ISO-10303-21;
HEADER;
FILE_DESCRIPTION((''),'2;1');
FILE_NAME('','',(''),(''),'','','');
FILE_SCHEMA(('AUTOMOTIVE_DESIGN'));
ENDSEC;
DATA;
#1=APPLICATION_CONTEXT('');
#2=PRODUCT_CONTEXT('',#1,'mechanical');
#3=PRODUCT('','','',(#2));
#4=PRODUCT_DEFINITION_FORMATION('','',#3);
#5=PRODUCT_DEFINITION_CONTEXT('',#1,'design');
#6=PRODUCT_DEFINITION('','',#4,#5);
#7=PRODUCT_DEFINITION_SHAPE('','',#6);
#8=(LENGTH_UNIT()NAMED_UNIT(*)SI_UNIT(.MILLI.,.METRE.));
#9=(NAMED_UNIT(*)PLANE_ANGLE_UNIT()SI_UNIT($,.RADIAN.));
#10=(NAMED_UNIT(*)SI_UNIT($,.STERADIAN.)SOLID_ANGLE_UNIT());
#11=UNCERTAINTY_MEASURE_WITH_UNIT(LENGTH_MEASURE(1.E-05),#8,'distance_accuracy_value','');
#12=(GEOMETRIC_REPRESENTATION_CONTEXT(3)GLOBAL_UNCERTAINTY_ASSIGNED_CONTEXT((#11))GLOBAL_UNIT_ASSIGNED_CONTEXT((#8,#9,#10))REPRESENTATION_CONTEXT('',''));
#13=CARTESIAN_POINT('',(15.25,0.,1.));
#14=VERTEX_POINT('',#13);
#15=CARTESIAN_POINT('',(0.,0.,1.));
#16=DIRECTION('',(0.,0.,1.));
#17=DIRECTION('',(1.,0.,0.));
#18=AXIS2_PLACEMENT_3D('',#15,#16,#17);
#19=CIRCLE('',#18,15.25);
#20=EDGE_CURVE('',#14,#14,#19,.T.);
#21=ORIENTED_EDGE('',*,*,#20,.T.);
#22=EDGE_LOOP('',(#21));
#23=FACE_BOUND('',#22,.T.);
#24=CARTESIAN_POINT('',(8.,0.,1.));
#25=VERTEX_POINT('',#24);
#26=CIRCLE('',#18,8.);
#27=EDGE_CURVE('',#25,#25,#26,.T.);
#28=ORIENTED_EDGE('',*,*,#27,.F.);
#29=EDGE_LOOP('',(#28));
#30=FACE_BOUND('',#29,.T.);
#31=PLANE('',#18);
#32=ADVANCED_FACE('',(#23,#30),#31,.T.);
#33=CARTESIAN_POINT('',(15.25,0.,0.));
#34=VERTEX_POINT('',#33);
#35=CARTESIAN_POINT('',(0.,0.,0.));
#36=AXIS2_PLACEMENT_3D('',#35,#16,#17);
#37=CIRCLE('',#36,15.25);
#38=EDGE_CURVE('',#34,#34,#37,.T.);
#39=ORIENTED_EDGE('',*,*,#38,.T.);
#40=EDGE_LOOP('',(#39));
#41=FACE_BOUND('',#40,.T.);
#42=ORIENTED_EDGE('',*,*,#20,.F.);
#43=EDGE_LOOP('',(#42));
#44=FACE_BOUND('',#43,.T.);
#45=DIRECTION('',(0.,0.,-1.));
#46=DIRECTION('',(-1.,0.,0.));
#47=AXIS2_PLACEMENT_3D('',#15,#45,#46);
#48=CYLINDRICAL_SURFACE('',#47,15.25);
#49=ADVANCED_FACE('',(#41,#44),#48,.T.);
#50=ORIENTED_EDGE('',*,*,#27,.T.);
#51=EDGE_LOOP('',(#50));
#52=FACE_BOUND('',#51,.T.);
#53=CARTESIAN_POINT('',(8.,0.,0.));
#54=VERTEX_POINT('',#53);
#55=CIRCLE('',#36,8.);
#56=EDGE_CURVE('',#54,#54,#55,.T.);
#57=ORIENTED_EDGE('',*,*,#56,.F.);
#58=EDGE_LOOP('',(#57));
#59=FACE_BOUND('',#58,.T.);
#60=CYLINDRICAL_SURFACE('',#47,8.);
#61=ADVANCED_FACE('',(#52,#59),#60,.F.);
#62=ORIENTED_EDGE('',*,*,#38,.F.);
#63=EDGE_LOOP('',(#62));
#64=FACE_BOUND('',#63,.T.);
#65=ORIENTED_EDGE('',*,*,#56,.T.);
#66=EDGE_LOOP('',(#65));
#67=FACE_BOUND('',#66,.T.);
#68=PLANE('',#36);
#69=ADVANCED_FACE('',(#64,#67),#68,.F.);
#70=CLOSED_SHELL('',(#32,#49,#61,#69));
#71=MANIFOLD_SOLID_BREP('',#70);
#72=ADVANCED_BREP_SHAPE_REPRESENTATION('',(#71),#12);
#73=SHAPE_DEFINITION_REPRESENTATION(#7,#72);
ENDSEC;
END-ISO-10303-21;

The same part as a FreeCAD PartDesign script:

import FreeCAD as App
import Part
import Sketcher
from FreeCAD import Vector

doc = App.newDocument("Part")
body = doc.addObject("PartDesign::Body", "Body")

sketch1 = body.newObject("Sketcher::SketchObject", "Sketch")
sketch1.AttachmentSupport = (doc.getObject("XY_Plane"), [""])
sketch1.MapMode = "FlatFace"
sketch1.addGeometry([
    Part.Circle(Vector(0, 0, 0), Vector(0, 0, 1), 15.25),
    Part.Circle(Vector(0, 0, 0), Vector(0, 0, 1), 8),
], False)
sketch1.addConstraint([
    Sketcher.Constraint("Coincident", 0, 3, -1, 1),
    Sketcher.Constraint("Coincident", 1, 3, -1, 1),
    Sketcher.Constraint("Diameter", 1, 16.0),
    Sketcher.Constraint("Diameter", 0, 30.5),
])
pad1 = body.newObject("PartDesign::Pad", "Pad")
pad1.Profile = sketch1
pad1.Length = 1

doc.recompute()
